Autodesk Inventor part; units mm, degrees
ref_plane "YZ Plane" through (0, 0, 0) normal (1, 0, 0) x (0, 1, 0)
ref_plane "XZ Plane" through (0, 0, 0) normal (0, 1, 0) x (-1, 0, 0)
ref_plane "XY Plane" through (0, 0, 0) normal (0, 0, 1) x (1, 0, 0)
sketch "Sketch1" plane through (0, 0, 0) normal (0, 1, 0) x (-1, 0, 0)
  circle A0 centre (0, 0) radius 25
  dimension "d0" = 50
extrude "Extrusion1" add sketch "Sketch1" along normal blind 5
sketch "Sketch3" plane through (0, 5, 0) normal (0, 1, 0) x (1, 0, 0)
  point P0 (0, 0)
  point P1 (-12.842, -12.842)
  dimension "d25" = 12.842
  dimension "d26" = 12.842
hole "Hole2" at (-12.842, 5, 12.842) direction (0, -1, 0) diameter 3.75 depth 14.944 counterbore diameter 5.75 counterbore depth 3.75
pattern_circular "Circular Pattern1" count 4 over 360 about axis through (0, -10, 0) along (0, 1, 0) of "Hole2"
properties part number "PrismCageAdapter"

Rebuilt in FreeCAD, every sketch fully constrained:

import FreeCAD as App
import Part
import Sketcher

V = App.Vector

doc = App.newDocument("Part")
body = doc.addObject("PartDesign::Body", "Body")

# Sketch on XZ plane
sketch1 = body.newObject("Sketcher::SketchObject", "Sketch")
sketch1.AttachmentSupport = (doc.getObject("XZ_Plane"), [""])
sketch1.MapMode = "FlatFace"
sketch1.addGeometry(Part.Circle(V(0, 0, 0), V(0, 0, 1), 25), False)
sketch1.addConstraint([
    Sketcher.Constraint("Coincident", 0, 3, -1, 1),
    Sketcher.Constraint("Diameter", 0, 50.0),
])
pad1 = body.newObject("PartDesign::Pad", "Pad")
pad1.Profile = sketch1
pad1.Length = 5
pad1.Reversed = True

# Sketch on XZ plane
sketch2 = body.newObject("Sketcher::SketchObject", "Sketch001")
sketch2.AttachmentSupport = (doc.getObject("XZ_Plane"), [""])
sketch2.MapMode = "FlatFace"
sketch2.AttachmentOffset = App.Placement(V(0, 0, -5), App.Rotation())
sketch2.addGeometry(Part.Circle(V(-12.8, 12.8, 0), V(0, 0, 1), 1.9), False)
sketch2.addConstraint([
    Sketcher.Constraint("Diameter", 0, 3.75),
    Sketcher.Constraint("DistanceX", 0, 3, -1, 1, 12.842),
    Sketcher.Constraint("DistanceY", -1, 1, 0, 3, 12.842),
])
doc.recompute()
hole = body.newObject("PartDesign::Hole", "Hole")
hole.Profile = sketch2
hole.ThreadType = "None"
hole.Diameter = 3.75
hole.DepthType = "Dimension"
hole.Depth = 14.944
hole.DrillPoint = "Flat"
hole.HoleCutType = "Counterbore"
hole.HoleCutDiameter = 5.75
hole.HoleCutDepth = 3.75
hole.Reversed = True
doc.recompute()

polarpattern = body.newObject("PartDesign::PolarPattern", "PolarPattern")
polarpattern.Originals = [hole]
polarpattern.Axis = (doc.getObject("Y_Axis"), [""])
polarpattern.Angle = 360
polarpattern.Occurrences = 4
body.Tip = polarpattern

doc.recompute()
